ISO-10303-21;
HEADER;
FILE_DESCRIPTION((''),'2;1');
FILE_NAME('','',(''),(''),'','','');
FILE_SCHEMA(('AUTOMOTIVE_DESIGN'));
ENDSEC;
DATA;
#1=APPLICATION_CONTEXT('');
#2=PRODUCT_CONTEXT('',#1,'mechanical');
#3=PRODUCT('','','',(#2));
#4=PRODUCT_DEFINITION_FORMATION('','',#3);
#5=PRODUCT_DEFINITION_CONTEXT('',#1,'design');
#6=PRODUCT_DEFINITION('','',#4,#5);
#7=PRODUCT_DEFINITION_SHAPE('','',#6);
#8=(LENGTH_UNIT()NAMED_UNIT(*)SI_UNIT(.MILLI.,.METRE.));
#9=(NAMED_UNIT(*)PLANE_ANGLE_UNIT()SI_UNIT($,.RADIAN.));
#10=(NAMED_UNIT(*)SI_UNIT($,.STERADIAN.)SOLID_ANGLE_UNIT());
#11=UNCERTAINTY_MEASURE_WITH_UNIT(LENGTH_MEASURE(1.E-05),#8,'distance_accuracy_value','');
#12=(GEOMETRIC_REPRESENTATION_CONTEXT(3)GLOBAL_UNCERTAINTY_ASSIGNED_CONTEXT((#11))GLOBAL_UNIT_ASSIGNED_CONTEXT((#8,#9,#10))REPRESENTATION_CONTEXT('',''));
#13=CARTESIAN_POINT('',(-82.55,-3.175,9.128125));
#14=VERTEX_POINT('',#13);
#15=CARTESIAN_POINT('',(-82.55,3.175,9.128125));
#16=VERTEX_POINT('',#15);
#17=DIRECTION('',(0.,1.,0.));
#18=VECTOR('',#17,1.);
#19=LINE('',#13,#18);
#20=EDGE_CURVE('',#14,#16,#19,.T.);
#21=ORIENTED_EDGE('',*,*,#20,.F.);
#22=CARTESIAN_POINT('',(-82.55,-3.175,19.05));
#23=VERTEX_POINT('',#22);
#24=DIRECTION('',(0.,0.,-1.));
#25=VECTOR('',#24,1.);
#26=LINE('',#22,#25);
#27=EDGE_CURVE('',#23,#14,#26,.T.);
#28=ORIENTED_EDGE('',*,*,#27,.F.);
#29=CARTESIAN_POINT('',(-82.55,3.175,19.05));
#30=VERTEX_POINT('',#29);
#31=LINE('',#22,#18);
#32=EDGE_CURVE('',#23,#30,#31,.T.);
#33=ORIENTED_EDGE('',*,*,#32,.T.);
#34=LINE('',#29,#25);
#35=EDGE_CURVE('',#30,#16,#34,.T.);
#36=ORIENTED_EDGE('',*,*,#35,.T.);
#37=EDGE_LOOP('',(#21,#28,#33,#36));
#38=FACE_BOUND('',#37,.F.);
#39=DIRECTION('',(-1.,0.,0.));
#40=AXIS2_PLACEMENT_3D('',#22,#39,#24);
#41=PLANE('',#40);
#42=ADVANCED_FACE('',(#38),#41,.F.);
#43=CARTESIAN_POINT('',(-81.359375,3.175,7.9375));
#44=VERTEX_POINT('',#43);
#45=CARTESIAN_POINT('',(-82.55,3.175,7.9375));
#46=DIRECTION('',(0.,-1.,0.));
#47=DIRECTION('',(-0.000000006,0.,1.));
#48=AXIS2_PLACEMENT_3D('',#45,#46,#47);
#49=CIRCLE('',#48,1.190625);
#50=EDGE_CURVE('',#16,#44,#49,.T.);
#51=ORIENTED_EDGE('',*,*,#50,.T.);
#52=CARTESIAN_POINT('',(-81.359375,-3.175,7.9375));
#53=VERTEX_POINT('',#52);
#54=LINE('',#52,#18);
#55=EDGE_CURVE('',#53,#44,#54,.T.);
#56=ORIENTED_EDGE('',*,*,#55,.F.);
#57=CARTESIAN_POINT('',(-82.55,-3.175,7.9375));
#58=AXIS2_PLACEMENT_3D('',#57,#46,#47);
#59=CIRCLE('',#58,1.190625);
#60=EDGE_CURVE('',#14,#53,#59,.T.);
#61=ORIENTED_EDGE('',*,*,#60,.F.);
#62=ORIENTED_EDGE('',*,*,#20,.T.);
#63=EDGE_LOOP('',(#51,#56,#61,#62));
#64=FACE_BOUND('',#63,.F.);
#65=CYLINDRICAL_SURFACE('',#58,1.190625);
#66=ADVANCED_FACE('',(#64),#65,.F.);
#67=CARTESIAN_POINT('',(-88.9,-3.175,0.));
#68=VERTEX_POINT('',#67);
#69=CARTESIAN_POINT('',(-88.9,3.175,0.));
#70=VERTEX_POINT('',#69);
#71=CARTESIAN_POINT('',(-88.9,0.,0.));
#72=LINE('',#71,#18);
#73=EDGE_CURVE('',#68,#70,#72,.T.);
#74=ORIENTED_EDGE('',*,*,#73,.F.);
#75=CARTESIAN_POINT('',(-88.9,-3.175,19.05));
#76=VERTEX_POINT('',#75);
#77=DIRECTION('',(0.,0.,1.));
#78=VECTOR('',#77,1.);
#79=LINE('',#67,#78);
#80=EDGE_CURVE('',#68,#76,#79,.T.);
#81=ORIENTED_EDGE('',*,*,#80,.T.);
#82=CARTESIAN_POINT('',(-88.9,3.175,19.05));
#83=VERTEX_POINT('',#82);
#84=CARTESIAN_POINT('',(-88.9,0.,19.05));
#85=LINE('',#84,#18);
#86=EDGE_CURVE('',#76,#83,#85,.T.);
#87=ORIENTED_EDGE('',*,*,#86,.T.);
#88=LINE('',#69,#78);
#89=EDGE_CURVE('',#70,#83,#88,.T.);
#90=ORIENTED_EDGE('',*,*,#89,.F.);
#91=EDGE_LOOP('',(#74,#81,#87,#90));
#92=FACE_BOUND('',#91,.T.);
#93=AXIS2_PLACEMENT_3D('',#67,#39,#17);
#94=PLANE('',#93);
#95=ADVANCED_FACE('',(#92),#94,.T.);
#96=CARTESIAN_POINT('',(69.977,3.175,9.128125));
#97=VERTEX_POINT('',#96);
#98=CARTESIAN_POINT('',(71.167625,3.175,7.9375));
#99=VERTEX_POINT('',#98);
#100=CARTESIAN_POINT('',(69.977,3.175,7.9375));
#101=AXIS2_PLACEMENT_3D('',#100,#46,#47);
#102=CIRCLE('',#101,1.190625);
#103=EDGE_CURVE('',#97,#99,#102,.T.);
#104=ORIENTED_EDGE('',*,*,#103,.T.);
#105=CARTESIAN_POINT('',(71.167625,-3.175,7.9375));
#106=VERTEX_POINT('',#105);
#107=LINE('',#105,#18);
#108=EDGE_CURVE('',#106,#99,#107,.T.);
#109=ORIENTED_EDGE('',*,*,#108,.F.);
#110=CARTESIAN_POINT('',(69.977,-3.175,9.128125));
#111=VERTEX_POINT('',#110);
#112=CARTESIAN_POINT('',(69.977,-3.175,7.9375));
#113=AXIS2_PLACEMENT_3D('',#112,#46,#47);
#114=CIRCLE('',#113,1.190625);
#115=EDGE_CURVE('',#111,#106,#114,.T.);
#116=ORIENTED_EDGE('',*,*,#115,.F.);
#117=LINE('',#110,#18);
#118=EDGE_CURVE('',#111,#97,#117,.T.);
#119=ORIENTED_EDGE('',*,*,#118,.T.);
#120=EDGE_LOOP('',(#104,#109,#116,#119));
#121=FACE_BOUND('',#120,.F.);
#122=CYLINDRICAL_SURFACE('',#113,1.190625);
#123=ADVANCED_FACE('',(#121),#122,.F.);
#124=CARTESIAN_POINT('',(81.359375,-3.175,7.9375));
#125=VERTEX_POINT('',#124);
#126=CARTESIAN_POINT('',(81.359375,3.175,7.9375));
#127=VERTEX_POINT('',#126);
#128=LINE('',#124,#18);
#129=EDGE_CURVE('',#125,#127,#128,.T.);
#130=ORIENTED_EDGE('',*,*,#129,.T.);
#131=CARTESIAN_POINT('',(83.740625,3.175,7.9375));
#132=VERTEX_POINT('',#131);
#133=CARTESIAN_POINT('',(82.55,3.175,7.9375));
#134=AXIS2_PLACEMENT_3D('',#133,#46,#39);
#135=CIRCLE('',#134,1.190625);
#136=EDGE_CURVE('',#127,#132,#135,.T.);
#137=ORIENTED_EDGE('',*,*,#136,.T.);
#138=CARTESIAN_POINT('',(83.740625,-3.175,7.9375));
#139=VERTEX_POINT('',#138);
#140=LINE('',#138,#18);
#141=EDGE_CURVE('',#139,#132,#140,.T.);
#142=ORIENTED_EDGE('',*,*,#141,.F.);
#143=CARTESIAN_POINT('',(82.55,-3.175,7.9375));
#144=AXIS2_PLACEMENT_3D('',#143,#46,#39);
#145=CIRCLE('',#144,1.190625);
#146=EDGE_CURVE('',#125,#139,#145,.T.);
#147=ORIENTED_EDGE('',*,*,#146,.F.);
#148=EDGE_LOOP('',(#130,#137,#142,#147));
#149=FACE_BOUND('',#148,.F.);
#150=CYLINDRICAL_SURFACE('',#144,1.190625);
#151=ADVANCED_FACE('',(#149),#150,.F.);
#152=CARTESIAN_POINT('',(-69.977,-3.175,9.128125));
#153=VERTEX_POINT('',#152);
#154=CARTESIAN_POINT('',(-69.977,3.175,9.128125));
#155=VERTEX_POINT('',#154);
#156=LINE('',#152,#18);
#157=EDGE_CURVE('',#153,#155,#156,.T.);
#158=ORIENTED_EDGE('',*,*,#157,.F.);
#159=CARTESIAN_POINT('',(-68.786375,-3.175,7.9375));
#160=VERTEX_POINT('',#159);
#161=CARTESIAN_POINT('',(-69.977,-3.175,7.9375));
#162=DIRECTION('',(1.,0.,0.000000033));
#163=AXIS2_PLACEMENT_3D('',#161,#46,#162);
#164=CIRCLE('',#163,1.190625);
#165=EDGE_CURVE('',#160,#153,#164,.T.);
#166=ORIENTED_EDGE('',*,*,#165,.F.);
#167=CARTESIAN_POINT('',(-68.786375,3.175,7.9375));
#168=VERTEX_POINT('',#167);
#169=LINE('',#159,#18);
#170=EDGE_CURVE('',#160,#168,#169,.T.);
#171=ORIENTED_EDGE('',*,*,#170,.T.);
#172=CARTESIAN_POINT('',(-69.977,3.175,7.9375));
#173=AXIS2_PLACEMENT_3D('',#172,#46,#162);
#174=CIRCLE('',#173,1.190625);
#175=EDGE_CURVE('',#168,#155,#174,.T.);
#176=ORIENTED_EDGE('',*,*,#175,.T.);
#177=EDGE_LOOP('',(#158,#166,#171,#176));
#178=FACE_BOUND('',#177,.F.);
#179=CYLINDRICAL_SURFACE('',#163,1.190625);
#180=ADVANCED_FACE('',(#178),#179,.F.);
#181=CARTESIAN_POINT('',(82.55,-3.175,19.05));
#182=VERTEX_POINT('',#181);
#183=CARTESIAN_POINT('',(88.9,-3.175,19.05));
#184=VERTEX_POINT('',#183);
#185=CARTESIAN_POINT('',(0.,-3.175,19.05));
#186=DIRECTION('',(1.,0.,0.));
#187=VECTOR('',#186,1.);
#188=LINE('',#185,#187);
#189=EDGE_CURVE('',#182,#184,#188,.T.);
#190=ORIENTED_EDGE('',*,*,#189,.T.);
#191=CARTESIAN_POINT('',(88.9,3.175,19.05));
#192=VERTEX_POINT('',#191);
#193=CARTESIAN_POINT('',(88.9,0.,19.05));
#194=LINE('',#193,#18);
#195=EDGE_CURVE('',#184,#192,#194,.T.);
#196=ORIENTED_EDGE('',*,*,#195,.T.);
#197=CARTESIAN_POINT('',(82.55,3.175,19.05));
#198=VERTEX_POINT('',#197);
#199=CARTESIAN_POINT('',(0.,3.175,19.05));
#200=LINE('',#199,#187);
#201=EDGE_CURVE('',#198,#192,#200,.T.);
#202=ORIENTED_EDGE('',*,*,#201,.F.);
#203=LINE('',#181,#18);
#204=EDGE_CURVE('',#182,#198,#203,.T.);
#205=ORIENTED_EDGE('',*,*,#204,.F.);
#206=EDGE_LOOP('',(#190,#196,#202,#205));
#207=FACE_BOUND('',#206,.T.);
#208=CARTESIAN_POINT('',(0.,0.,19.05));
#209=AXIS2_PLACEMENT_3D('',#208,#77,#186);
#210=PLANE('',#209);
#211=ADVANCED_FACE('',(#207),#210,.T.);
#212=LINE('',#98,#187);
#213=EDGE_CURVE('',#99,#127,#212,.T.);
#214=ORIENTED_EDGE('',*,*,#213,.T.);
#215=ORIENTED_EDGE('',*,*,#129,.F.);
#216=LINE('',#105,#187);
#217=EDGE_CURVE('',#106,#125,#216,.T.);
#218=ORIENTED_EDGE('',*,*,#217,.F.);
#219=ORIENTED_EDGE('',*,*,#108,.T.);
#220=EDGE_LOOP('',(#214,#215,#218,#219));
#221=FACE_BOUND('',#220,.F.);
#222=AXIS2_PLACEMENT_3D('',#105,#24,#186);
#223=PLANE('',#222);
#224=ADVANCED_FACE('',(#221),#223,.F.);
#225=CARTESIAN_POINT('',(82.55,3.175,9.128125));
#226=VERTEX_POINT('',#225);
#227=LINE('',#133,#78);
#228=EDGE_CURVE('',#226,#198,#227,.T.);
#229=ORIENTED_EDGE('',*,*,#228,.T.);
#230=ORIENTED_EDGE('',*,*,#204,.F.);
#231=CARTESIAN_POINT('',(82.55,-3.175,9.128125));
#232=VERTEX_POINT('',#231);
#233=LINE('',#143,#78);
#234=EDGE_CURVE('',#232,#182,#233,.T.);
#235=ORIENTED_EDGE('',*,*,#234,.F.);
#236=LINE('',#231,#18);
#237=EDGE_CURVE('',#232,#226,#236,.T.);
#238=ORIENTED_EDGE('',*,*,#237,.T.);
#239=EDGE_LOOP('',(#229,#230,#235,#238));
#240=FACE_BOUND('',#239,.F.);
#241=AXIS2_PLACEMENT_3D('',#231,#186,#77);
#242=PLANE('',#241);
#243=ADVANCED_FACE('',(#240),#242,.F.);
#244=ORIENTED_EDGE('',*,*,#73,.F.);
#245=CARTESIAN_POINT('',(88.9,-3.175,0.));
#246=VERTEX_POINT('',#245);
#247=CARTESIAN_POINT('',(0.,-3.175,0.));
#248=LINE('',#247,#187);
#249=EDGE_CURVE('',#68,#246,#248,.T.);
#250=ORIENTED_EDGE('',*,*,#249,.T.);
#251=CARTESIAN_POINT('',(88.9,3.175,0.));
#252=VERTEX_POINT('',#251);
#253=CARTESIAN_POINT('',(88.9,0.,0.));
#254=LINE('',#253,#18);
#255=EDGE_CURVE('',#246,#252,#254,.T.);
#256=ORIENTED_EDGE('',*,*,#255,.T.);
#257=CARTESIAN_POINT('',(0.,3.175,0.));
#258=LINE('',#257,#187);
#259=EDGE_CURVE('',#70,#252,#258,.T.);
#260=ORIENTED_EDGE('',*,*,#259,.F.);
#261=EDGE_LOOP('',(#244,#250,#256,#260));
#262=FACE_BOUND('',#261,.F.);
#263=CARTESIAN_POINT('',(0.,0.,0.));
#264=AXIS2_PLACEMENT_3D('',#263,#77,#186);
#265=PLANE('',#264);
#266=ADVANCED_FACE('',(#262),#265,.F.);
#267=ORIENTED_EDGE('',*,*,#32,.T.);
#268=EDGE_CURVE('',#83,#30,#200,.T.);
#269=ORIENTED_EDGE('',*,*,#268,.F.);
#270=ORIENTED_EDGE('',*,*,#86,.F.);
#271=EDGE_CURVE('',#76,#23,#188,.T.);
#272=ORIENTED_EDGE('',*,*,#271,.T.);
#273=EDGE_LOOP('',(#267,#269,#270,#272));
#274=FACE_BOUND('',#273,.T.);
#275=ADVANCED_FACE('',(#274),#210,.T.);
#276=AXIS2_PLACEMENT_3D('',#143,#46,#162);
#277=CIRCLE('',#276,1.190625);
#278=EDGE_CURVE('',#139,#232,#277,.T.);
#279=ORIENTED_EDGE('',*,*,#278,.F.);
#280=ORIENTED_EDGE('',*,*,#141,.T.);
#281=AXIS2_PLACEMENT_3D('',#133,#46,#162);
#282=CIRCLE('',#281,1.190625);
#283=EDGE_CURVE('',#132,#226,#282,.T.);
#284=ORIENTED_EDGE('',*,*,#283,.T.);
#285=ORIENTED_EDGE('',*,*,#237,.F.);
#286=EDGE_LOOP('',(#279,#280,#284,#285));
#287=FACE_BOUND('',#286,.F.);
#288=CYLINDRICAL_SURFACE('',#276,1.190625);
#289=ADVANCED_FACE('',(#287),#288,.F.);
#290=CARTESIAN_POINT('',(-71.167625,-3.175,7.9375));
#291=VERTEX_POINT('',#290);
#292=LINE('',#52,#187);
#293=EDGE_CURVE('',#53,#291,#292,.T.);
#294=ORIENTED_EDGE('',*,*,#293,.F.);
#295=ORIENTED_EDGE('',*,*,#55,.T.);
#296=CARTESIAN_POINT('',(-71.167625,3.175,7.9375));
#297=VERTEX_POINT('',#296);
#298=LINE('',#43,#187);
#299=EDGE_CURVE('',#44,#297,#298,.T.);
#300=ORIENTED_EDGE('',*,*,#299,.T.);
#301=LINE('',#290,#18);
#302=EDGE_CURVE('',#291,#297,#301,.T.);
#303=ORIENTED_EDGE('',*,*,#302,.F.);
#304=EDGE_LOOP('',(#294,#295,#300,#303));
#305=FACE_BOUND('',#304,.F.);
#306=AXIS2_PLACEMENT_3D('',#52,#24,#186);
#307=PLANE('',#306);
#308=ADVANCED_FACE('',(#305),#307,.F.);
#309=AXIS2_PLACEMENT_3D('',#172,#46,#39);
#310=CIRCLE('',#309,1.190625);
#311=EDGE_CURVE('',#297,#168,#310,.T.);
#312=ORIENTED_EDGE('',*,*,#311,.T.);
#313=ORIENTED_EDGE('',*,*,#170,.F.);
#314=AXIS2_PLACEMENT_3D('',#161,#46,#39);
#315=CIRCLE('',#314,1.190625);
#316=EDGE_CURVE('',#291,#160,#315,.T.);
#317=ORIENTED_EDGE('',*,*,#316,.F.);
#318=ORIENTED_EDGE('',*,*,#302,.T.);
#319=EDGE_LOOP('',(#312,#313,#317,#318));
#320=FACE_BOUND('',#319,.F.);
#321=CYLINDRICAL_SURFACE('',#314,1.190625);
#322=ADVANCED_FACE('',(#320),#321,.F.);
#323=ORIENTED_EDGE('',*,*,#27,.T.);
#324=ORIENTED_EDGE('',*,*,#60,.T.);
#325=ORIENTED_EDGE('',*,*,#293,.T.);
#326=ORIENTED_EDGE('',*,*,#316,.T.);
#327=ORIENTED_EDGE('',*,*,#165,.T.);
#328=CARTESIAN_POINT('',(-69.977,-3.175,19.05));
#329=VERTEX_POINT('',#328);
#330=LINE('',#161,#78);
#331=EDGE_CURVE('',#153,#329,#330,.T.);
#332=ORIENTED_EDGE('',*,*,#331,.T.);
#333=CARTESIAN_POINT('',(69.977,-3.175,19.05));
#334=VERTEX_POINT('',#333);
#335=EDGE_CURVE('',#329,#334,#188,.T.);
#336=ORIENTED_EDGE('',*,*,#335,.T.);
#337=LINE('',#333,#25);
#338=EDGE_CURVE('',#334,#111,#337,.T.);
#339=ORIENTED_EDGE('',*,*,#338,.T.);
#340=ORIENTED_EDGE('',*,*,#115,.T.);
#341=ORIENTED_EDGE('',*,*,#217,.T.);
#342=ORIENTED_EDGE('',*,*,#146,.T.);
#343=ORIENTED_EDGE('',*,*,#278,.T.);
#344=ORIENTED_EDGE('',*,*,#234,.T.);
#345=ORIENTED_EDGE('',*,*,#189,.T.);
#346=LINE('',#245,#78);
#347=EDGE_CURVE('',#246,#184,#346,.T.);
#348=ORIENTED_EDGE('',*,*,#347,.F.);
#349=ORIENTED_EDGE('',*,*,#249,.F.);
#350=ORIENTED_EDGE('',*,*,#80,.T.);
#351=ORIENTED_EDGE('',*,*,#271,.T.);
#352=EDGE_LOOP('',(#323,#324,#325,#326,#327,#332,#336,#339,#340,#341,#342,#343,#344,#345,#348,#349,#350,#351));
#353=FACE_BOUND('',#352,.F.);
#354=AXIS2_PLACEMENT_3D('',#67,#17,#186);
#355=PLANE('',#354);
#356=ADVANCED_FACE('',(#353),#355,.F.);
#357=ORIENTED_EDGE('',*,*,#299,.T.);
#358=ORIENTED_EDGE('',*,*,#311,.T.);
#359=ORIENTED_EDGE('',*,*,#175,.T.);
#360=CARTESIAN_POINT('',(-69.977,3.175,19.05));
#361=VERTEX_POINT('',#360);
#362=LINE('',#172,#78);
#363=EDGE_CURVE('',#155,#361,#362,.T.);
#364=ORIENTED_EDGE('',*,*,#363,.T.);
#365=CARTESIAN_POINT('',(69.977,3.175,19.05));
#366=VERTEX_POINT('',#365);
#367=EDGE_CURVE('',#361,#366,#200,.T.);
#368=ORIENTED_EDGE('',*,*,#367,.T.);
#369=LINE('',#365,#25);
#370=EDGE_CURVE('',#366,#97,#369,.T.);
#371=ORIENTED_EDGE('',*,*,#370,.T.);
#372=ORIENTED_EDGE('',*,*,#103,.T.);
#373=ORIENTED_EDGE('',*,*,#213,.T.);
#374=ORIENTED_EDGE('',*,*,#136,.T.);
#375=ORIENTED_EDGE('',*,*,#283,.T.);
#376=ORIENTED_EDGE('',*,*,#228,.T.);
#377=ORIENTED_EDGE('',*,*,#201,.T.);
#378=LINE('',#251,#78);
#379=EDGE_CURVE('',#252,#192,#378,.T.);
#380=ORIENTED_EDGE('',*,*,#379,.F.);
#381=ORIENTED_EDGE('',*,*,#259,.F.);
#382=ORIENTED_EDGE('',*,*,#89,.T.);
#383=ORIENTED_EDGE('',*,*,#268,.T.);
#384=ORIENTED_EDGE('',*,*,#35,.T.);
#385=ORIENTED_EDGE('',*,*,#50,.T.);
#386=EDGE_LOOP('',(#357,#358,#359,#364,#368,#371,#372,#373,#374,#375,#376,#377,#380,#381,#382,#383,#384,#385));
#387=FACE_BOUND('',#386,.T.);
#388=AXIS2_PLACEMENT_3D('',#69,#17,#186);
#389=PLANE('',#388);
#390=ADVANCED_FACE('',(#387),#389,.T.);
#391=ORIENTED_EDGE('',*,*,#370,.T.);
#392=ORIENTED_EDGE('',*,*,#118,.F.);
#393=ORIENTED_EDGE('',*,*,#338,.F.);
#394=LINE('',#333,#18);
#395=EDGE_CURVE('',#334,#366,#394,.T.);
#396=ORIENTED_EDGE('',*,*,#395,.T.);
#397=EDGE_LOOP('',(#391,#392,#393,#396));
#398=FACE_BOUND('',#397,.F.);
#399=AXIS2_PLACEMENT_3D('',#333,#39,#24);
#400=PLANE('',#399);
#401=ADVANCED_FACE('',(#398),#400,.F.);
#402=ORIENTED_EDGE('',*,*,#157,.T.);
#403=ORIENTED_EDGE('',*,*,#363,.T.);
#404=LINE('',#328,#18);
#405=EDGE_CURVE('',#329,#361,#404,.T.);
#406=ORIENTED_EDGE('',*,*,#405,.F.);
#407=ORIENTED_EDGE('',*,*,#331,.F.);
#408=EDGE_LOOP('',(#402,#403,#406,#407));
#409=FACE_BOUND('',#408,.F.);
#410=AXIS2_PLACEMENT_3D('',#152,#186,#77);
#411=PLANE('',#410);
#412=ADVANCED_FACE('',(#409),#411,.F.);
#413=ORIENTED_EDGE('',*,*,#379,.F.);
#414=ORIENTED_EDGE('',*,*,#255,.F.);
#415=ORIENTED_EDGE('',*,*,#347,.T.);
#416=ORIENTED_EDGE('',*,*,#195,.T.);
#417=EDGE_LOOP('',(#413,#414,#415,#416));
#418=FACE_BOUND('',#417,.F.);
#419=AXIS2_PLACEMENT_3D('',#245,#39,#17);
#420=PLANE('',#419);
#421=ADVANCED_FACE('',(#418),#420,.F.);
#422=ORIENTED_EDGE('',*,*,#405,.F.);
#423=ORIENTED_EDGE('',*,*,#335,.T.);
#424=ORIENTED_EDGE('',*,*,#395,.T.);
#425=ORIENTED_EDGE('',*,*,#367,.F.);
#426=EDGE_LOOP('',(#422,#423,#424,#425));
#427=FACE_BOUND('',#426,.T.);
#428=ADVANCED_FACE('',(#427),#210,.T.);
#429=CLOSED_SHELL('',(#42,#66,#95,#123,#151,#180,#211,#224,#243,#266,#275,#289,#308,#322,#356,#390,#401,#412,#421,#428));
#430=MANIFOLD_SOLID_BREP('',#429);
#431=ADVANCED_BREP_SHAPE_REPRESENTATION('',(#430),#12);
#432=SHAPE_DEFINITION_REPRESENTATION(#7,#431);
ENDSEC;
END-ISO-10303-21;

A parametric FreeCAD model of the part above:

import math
import FreeCAD as App
import Part
import Sketcher
from FreeCAD import Vector
Q = App.Units.Quantity

doc = App.newDocument("Part")
body = doc.addObject("PartDesign::Body", "Body")

# Sketch on XY plane
sketch1 = body.newObject("Sketcher::SketchObject", "Sketch")
sketch1.AttachmentSupport = (doc.getObject("XY_Plane"), [""])
sketch1.MapMode = "FlatFace"
sketch1.addGeometry(Part.LineSegment(Vector(-89, 3, 0), Vector(-89, -3, 0)), False)
sketch1.addGeometry(Part.LineSegment(Vector(-89, -3, 0), Vector(89, -3, 0)), False)
sketch1.addGeometry(Part.LineSegment(Vector(89, -3, 0), Vector(89, 3, 0)), False)
sketch1.addGeometry(Part.LineSegment(Vector(89, 3, 0), Vector(-89, 3, 0)), False)
sketch1.addConstraint(Sketcher.Constraint("Coincident", 0, 2, 1, 1))
sketch1.addConstraint(Sketcher.Constraint("Coincident", 1, 2, 2, 1))
sketch1.addConstraint(Sketcher.Constraint("Coincident", 2, 2, 3, 1))
sketch1.addConstraint(Sketcher.Constraint("Coincident", 3, 2, 0, 1))
sketch1.addConstraint(Sketcher.Constraint("Vertical", 0))
sketch1.addConstraint(Sketcher.Constraint("Horizontal", 1))
sketch1.addConstraint(Sketcher.Constraint("Vertical", 2))
sketch1.addConstraint(Sketcher.Constraint("Horizontal", 3))
sketch1.addConstraint(Sketcher.Constraint("Symmetric", 0, 2, 2, 2, -1, 1))
sketch1.addConstraint(Sketcher.Constraint("DistanceX", 1, 1, 1, 2, Q("7 in")))
sketch1.addConstraint(Sketcher.Constraint("DistanceY", 0, 2, 0, 1, Q("0.25 in")))
pad1 = body.newObject("PartDesign::Pad", "Pad")
pad1.Profile = sketch1
pad1.Length = Q("0.75 in")

# Sketch on XZ plane
sketch2 = body.newObject("Sketcher::SketchObject", "Sketch001")
sketch2.AttachmentSupport = (doc.getObject("XZ_Plane"), [""])
sketch2.MapMode = "FlatFace"
sketch2.AttachmentOffset = App.Placement(Vector(0, 0, 0.125 * 25.4), App.Rotation())
sketch2.addGeometry(Part.LineSegment(Vector(-70, 19.1, 0), Vector(-82.5, 19.1, 0)), False)
sketch2.addGeometry(Part.LineSegment(Vector(-82.5, 19.1, 0), Vector(-82.5, 9.1, 0)), False)
sketch2.addGeometry(Part.ArcOfCircle(Part.Circle(Vector(-82.5, 7.9, 0), Vector(0, 0, 1), 1.2), math.radians(90), math.radians(360)), False)
sketch2.addGeometry(Part.LineSegment(Vector(-81.4, 7.9, 0), Vector(-71.2, 7.9, 0)), False)
sketch2.addGeometry(Part.ArcOfCircle(Part.Circle(Vector(-70, 7.9, 0), Vector(0, 0, 1), 1.2), math.radians(180), math.radians(360)), False)
sketch2.addGeometry(Part.ArcOfCircle(Part.Circle(Vector(-70, 7.9, 0), Vector(0, 0, 1), 1.2), math.radians(0), math.radians(90)), False)
sketch2.addGeometry(Part.LineSegment(Vector(-70, 9.1, 0), Vector(-70, 19.1, 0)), False)
sketch2.addGeometry(Part.LineSegment(Vector(82.5, 19.1, 0), Vector(70, 19.1, 0)), False)
sketch2.addGeometry(Part.LineSegment(Vector(70, 19.1, 0), Vector(70, 9.1, 0)), False)
sketch2.addGeometry(Part.ArcOfCircle(Part.Circle(Vector(70, 7.9, 0), Vector(0, 0, 1), 1.2), math.radians(90), math.radians(360)), False)
sketch2.addGeometry(Part.LineSegment(Vector(71.2, 7.9, 0), Vector(81.4, 7.9, 0)), False)
sketch2.addGeometry(Part.ArcOfCircle(Part.Circle(Vector(82.5, 7.9, 0), Vector(0, 0, 1), 1.2), math.radians(180), math.radians(360)), False)
sketch2.addGeometry(Part.ArcOfCircle(Part.Circle(Vector(82.5, 7.9, 0), Vector(0, 0, 1), 1.2), math.radians(0), math.radians(90)), False)
sketch2.addGeometry(Part.LineSegment(Vector(82.5, 9.1, 0), Vector(82.5, 19.1, 0)), False)
sketch2.addConstraint(Sketcher.Constraint("Coincident", 0, 2, 1, 1))
sketch2.addConstraint(Sketcher.Constraint("Coincident", 1, 2, 2, 1))
sketch2.addConstraint(Sketcher.Constraint("Coincident", 2, 2, 3, 1))
sketch2.addConstraint(Sketcher.Constraint("Coincident", 3, 2, 4, 1))
sketch2.addConstraint(Sketcher.Constraint("Tangent", 4, 2, 5, 1))
sketch2.addConstraint(Sketcher.Constraint("Coincident", 5, 2, 6, 1))
sketch2.addConstraint(Sketcher.Constraint("Coincident", 6, 2, 0, 1))
sketch2.addConstraint(Sketcher.Constraint("Coincident", 7, 2, 8, 1))
sketch2.addConstraint(Sketcher.Constraint("Coincident", 8, 2, 9, 1))
sketch2.addConstraint(Sketcher.Constraint("Coincident", 9, 2, 10, 1))
sketch2.addConstraint(Sketcher.Constraint("Coincident", 10, 2, 11, 1))
sketch2.addConstraint(Sketcher.Constraint("Tangent", 11, 2, 12, 1))
sketch2.addConstraint(Sketcher.Constraint("Coincident", 12, 2, 13, 1))
sketch2.addConstraint(Sketcher.Constraint("Coincident", 13, 2, 7, 1))
sketch2.addConstraint(Sketcher.Constraint("Horizontal", 0))
sketch2.addConstraint(Sketcher.Constraint("Vertical", 1))
sketch2.addConstraint(Sketcher.Constraint("Horizontal", 3))
sketch2.addConstraint(Sketcher.Constraint("Vertical", 6))
sketch2.addConstraint(Sketcher.Constraint("Horizontal", 7))
sketch2.addConstraint(Sketcher.Constraint("Vertical", 8))
sketch2.addConstraint(Sketcher.Constraint("Horizontal", 10))
sketch2.addConstraint(Sketcher.Constraint("Vertical", 13))
sketch2.addConstraint(Sketcher.Constraint("Equal", 2, 4))
sketch2.addConstraint(Sketcher.Constraint("Equal", 4, 5))
sketch2.addConstraint(Sketcher.Constraint("Equal", 5, 9))
sketch2.addConstraint(Sketcher.Constraint("Equal", 9, 11))
sketch2.addConstraint(Sketcher.Constraint("Equal", 11, 12))
sketch2.addConstraint(Sketcher.Constraint("Symmetric", 4, 3, 9, 3, -2))
sketch2.addConstraint(Sketcher.Constraint("Symmetric", 2, 3, 11, 3, -2))
sketch2.addConstraint(Sketcher.Constraint("Symmetric", 6, 2, 7, 2, -2))
sketch2.addConstraint(Sketcher.Constraint("Horizontal", 2, 3, 4, 3))
sketch2.addConstraint(Sketcher.Constraint("Horizontal", 12, 3, 2, 2))
sketch2.addConstraint(Sketcher.Constraint("Horizontal", 3, 2, 4, 2))
sketch2.addConstraint(Sketcher.Constraint("Horizontal", 4, 2, 9, 2))
sketch2.addConstraint(Sketcher.Constraint("Horizontal", 10, 2, 11, 2))
sketch2.addConstraint(Sketcher.Constraint("Vertical", 2, 3, 0, 2))
sketch2.addConstraint(Sketcher.Constraint("Vertical", 4, 3, 5, 2))
sketch2.addConstraint(Sketcher.Constraint("Vertical", 11, 3, 12, 2))
sketch2.addConstraint(Sketcher.Constraint("Radius", 2, Q("0.046875 in")))
sketch2.addConstraint(Sketcher.Constraint("DistanceX", 2, 3, 11, 3, Q("6.5 in")))
sketch2.addConstraint(Sketcher.Constraint("DistanceX", 0, 2, 0, 1, Q("0.495 in")))
sketch2.addConstraint(Sketcher.Constraint("DistanceY", 1, 2, 1, 1, Q("0.390625 in")))
sketch2.addConstraint(Sketcher.Constraint("DistanceY", -1, 1, 0, 2, Q("0.75 in")))
pocket1 = body.newObject("PartDesign::Pocket", "Pocket")
pocket1.Profile = sketch2
pocket1.Type = "ThroughAll"

doc.recompute()
